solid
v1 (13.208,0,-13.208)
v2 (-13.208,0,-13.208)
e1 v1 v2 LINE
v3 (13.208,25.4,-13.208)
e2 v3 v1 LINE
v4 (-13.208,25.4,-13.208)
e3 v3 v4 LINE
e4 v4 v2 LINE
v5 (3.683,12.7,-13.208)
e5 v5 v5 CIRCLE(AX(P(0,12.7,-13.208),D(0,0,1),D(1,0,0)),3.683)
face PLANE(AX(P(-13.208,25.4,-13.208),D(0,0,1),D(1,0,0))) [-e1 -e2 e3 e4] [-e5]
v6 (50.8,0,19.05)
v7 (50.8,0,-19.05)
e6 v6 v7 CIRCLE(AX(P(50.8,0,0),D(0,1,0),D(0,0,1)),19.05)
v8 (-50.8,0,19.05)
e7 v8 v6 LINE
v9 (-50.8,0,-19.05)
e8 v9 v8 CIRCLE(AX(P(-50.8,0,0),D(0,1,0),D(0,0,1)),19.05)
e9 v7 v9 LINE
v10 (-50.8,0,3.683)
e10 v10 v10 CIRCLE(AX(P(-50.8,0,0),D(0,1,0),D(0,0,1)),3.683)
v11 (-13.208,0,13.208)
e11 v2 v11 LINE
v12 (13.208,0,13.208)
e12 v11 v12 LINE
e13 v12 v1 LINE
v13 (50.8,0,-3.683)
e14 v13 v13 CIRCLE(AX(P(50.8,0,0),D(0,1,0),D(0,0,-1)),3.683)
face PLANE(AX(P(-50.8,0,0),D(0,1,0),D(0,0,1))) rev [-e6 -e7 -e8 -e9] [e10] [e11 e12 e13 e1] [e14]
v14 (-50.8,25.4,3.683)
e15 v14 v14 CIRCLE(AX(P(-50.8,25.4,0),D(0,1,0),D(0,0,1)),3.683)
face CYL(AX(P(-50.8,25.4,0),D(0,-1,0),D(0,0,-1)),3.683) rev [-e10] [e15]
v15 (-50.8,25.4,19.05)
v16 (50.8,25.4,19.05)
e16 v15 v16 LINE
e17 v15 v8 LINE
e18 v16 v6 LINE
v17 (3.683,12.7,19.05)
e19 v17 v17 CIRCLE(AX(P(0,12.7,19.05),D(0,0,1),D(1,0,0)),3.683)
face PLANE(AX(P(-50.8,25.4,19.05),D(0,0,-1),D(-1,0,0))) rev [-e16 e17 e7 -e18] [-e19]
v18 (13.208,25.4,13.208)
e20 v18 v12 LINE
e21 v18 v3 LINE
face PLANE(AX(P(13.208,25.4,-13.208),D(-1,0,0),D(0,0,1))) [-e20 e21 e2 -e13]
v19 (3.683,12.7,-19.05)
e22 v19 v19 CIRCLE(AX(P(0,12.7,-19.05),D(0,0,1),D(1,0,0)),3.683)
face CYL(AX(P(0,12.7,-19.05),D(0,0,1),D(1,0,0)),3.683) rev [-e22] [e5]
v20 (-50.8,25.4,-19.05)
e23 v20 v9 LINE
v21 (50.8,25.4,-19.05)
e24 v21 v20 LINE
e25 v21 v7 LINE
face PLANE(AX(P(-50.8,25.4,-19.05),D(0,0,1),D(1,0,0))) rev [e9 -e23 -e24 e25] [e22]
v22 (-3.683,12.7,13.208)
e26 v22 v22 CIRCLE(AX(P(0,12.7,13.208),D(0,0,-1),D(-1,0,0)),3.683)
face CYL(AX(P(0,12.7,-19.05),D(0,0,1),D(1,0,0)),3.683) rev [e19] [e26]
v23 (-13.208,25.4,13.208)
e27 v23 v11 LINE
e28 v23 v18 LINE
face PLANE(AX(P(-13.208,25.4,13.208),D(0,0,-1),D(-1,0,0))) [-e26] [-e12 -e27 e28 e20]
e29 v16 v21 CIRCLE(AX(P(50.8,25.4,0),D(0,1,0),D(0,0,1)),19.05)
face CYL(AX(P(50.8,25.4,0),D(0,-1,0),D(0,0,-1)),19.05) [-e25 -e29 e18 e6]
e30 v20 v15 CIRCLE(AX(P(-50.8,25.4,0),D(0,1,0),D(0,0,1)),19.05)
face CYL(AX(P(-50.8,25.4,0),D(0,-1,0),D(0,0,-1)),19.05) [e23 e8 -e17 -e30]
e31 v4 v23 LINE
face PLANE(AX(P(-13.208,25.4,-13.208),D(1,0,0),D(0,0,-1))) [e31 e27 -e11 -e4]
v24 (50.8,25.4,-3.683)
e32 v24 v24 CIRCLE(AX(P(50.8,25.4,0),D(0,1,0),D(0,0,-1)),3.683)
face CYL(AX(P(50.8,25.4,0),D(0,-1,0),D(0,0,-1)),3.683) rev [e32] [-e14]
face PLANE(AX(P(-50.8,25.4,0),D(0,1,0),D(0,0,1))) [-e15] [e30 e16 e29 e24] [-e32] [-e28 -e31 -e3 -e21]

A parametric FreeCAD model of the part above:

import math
import FreeCAD as App
import Part
import Sketcher
Q = App.Units.Quantity


def add_polygon(sketch, points):
    """Adds a closed chain of lines whose ends are joined by coincident constraints."""
    first, n = sketch.GeometryCount, len(points)
    for a, b in zip(points, points[1:] + points[:1]):
        sketch.addGeometry(Part.LineSegment(App.Vector(*a, 0), App.Vector(*b, 0)), False)
    for i in range(n):
        sketch.addConstraint(Sketcher.Constraint("Coincident", first + i, 2, first + (i + 1) % n, 1))

doc = App.newDocument("Part")
body = doc.addObject("PartDesign::Body", "Body")

# Sketch on XZ plane
sketch1 = doc.addObject("Sketcher::SketchObject", "Sketch")
body.addObject(sketch1)
sketch1.AttachmentSupport = (doc.XZ_Plane, [""])
sketch1.MapMode = "FlatFace"
sketch1.addGeometry(Part.LineSegment(App.Vector(50.8, -19.05, 0), App.Vector(-50.8, -19.05, 0)), False)  # 0
sketch1.addGeometry(Part.ArcOfCircle(Part.Circle(App.Vector(-50.8, 0, 0), App.Vector(0, 0, 1), 19.05), math.radians(90), math.radians(270)), False)  # 1
sketch1.addGeometry(Part.LineSegment(App.Vector(-50.8, 19.05, 0), App.Vector(50.8, 19.05, 0)), False)  # 2
sketch1.addGeometry(Part.ArcOfCircle(Part.Circle(App.Vector(50.8, 0, 0), App.Vector(0, 0, 1), 19.05), math.radians(-90), math.radians(90)), False)  # 3
sketch1.addGeometry(Part.Circle(App.Vector(50.8, 0, 0), App.Vector(0, 0, 1), 3.683), False)  # 4
add_polygon(sketch1, [(-13.208, 13.208), (-13.208, -13.208), (13.208, -13.208), (13.208, 13.208)])  # lines 5-8
sketch1.addGeometry(Part.Circle(App.Vector(-50.8, 0, 0), App.Vector(0, 0, 1), 3.683), False)  # 9
sketch1.addConstraint([
    Sketcher.Constraint("Tangent", 0, 2, 1, 2),
    Sketcher.Constraint("Tangent", 1, 1, 2, 1),
    Sketcher.Constraint("Tangent", 2, 2, 3, 2),
    Sketcher.Constraint("Tangent", 3, 1, 0, 1),
    Sketcher.Constraint("Horizontal", 0),
    Sketcher.Constraint("Horizontal", 2),
    Sketcher.Constraint("Vertical", 5),
    Sketcher.Constraint("Horizontal", 6),
    Sketcher.Constraint("Vertical", 7),
    Sketcher.Constraint("Horizontal", 8),
    Sketcher.Constraint("Coincident", 4, 3, 3, 3),
    Sketcher.Constraint("Coincident", 9, 3, 1, 3),
    Sketcher.Constraint("Equal", 4, 9),
    Sketcher.Constraint("Symmetric", 1, 3, 3, 3, -1, 1),
    Sketcher.Constraint("Symmetric", 5, 2, 7, 2, -1, 1),
    Sketcher.Constraint("Equal", 8, 5),
    Sketcher.Constraint("Diameter", 4, Q("0.29 in")),
    Sketcher.Constraint("DistanceX", 0, 2, 0, 1, Q("4 in")),
    Sketcher.Constraint("Radius", 1, Q("0.75 in")),
    Sketcher.Constraint("DistanceX", 6, 1, 6, 2, Q("1.04 in")),
])
pad1 = doc.addObject("PartDesign::Pad", "Pad")
body.addObject(pad1)
pad1.Profile = sketch1
pad1.Length = Q("1 in")
pad1.Reversed = True

# Sketch on XY plane
sketch2 = doc.addObject("Sketcher::SketchObject", "Sketch001")
body.addObject(sketch2)
sketch2.AttachmentSupport = (doc.XY_Plane, [""])
sketch2.MapMode = "FlatFace"
sketch2.AttachmentOffset = App.Placement(App.Vector(0, 0, 0.75 * 25.4), App.Rotation())
sketch2.addGeometry(Part.Circle(App.Vector(0, 12.7, 0), App.Vector(0, 0, 1), 3.683), False)
sketch2.addConstraint([
    Sketcher.Constraint("PointOnObject", 0, 3, -2),
    Sketcher.Constraint("Diameter", 0, Q("0.29 in")),
    Sketcher.Constraint("DistanceY", -1, 1, 0, 3, Q("0.5 in")),
])
pocket1 = doc.addObject("PartDesign::Pocket", "Pocket")
body.addObject(pocket1)
pocket1.Profile = sketch2
pocket1.Type = "ThroughAll"

doc.recompute()
